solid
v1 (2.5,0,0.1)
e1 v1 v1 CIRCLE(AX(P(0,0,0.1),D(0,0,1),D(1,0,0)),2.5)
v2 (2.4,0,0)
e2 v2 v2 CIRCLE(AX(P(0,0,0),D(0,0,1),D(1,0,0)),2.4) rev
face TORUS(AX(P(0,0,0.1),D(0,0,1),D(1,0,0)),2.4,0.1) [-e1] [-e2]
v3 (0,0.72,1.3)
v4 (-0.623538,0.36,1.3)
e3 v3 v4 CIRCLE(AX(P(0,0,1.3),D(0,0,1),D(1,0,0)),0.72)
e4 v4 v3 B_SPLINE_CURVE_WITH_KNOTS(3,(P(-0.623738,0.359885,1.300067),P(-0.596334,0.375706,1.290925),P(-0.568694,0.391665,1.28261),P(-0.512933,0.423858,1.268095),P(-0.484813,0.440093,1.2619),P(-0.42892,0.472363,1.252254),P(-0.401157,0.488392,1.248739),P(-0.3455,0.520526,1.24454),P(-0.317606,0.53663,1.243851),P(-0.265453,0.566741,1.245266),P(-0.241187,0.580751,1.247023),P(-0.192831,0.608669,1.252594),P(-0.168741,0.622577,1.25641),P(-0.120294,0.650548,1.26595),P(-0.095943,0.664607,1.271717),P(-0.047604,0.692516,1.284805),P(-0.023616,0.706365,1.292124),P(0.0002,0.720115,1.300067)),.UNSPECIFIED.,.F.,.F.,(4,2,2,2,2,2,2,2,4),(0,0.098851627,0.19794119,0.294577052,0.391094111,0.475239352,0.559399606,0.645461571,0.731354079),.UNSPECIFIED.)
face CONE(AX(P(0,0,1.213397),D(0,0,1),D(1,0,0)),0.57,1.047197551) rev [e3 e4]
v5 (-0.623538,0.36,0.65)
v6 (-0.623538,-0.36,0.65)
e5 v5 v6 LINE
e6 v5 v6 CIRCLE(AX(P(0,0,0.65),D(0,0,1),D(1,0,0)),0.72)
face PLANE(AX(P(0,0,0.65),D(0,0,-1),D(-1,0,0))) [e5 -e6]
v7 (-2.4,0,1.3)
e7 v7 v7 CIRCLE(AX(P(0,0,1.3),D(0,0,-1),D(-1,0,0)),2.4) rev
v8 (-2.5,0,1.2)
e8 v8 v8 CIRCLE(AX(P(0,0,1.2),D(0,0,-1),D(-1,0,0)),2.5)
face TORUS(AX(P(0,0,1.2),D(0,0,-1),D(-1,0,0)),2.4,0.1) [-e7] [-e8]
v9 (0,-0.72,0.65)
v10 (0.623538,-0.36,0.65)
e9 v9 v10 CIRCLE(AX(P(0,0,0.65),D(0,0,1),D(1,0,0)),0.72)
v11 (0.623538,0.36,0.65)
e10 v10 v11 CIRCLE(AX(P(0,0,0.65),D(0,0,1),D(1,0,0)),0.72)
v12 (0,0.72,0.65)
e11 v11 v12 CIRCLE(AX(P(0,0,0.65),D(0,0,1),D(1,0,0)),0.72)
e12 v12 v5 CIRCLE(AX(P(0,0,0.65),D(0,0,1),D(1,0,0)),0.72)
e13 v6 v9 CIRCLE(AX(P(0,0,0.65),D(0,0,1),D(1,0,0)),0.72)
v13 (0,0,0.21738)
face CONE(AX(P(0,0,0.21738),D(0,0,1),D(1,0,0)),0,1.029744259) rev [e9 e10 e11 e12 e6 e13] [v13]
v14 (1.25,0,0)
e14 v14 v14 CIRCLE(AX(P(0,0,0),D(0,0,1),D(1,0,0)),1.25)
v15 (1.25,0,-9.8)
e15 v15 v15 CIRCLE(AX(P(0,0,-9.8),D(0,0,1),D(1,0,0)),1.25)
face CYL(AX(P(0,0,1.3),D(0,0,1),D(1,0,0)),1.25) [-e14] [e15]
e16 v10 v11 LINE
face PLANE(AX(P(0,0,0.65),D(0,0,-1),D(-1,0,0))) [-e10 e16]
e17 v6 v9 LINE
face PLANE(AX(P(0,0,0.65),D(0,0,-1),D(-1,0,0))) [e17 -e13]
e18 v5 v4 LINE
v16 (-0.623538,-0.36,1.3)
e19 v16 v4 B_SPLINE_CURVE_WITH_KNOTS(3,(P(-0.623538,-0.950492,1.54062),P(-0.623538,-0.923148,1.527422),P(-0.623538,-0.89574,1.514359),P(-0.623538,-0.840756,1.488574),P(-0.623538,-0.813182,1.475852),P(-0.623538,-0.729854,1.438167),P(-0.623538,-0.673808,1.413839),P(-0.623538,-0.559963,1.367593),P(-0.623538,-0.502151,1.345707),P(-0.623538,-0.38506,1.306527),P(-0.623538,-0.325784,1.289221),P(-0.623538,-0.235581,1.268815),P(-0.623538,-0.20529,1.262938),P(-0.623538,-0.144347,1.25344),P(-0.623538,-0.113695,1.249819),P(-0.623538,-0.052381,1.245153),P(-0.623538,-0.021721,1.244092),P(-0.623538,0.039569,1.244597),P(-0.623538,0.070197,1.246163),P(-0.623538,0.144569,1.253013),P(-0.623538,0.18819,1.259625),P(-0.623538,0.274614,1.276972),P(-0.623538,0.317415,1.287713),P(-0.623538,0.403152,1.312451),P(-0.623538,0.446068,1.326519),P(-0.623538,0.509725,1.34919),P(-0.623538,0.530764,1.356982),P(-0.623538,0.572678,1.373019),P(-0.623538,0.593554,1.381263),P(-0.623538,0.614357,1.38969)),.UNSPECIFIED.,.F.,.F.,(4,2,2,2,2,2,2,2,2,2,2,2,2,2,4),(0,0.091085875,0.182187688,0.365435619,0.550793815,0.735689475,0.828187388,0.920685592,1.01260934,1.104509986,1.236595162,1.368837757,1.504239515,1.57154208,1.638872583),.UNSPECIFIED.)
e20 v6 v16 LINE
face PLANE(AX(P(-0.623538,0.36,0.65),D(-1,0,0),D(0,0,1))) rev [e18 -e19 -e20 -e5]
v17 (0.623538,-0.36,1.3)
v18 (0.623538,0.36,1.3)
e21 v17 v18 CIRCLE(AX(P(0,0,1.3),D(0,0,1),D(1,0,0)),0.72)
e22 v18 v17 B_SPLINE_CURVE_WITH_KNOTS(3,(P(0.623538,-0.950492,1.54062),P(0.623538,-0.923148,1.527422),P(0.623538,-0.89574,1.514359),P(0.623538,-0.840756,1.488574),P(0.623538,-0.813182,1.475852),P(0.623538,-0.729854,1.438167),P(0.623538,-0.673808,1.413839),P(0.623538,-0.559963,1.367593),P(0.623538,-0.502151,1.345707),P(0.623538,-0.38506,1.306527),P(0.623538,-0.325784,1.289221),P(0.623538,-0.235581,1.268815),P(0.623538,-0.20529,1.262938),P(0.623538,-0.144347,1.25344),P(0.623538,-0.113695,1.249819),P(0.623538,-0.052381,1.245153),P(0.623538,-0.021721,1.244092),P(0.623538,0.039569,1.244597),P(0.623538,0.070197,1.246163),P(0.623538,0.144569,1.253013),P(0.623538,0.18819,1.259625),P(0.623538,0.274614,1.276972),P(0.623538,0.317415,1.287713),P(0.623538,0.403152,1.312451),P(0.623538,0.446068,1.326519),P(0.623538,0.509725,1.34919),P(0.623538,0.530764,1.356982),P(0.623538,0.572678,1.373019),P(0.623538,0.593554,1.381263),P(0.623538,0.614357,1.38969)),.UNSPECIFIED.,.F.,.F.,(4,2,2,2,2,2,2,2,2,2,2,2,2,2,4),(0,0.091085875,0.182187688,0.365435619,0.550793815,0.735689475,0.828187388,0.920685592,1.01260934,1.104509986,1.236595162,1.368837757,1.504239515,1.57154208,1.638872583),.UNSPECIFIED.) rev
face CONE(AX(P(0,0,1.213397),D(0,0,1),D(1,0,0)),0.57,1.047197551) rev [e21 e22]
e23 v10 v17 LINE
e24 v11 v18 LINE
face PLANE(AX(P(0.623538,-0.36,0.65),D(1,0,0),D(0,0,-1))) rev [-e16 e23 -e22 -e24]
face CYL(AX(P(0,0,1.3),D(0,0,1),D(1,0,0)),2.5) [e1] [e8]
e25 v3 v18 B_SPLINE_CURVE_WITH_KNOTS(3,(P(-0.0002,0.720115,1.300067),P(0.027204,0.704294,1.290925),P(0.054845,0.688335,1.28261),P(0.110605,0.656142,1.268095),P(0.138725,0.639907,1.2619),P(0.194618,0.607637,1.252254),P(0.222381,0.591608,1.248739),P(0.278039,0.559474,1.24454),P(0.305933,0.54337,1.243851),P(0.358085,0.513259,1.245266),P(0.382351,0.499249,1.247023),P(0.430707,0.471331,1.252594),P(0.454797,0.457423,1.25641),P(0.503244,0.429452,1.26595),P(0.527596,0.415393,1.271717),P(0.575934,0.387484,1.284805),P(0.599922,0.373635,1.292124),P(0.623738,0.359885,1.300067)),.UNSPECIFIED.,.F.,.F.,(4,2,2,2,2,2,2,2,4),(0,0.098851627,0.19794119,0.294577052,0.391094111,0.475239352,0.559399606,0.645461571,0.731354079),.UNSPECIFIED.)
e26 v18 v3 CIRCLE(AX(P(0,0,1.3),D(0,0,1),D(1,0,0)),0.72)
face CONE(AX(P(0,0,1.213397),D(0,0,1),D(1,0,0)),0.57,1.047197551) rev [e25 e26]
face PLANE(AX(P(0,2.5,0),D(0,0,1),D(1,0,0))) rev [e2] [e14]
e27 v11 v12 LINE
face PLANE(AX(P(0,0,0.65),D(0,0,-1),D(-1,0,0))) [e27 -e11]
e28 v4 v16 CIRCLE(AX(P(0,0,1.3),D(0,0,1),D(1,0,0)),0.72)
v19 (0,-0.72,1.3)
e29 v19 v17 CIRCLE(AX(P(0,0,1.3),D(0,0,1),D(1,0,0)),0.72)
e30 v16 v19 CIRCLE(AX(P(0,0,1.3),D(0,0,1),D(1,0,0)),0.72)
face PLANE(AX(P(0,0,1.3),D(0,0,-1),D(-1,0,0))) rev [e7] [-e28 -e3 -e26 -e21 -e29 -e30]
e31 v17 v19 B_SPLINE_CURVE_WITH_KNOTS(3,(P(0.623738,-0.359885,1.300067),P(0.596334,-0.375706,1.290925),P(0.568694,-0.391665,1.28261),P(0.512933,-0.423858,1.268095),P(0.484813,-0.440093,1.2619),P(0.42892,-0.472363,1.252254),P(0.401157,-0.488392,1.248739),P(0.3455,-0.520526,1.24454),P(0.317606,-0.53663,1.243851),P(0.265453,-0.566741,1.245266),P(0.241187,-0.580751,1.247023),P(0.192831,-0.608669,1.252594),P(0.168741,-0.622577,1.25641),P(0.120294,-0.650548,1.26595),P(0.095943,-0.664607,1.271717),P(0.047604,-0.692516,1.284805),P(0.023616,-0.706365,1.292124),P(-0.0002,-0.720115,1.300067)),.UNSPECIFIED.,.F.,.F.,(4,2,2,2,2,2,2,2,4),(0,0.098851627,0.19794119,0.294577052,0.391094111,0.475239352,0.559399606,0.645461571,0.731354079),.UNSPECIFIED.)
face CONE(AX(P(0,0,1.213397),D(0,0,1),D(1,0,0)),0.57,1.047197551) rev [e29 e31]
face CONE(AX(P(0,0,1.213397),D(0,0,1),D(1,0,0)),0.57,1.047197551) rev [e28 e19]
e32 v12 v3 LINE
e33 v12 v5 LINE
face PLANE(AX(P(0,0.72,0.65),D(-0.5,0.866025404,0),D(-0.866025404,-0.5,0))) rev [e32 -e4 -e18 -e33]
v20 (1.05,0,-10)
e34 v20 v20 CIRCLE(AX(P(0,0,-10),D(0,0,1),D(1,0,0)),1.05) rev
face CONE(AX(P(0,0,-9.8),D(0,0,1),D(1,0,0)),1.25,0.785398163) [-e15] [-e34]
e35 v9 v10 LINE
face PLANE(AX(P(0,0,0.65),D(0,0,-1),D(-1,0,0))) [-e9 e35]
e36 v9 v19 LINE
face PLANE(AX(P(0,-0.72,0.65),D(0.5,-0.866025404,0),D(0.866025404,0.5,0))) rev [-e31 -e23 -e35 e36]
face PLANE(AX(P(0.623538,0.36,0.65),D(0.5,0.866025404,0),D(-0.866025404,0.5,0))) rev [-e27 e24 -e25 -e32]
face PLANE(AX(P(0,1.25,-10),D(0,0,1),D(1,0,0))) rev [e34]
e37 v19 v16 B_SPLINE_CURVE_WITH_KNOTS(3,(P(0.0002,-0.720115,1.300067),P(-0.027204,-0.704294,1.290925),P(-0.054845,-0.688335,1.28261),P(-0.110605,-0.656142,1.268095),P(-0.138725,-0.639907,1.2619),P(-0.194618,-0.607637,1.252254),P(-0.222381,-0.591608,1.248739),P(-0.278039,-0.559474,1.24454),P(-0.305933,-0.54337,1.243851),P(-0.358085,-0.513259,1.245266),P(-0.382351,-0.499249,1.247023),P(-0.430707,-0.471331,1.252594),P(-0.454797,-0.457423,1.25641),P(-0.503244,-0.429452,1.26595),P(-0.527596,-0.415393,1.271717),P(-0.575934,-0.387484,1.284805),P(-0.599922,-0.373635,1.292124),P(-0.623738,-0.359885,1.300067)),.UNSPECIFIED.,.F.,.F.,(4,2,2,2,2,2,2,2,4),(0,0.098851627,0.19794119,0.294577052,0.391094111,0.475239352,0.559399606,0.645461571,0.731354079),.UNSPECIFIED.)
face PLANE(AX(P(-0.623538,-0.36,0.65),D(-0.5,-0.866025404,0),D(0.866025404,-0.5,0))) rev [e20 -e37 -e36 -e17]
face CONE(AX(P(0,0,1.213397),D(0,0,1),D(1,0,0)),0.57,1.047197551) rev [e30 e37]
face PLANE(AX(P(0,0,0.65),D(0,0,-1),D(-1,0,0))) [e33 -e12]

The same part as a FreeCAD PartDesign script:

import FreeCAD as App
import Part
import Sketcher
from FreeCAD import Vector
Q = App.Units.Quantity


def edges_at(feature, points):
    """Names of the edges that pass closest to the given points."""
    edges = feature.Shape.Edges
    near = lambda p: min(range(len(edges)), key=lambda i: edges[i].distToShape(Part.Vertex(*p))[0])
    return sorted({f"Edge{near(p) + 1}" for p in points})


def add_polygon(sketch, points):
    """Adds a closed chain of lines whose ends are joined by coincident constraints."""
    first, n = sketch.GeometryCount, len(points)
    for a, b in zip(points, points[1:] + points[:1]):
        sketch.addGeometry(Part.LineSegment(App.Vector(*a, 0), App.Vector(*b, 0)), False)
    for i in range(n):
        sketch.addConstraint(Sketcher.Constraint("Coincident", first + i, 2, first + (i + 1) % n, 1))

doc = App.newDocument("Part")
body = doc.addObject("PartDesign::Body", "Body")

# Sketch on YZ plane
sketch1 = body.newObject("Sketcher::SketchObject", "Sketch")
sketch1.AttachmentSupport = (doc.getObject("YZ_Plane"), [""])
sketch1.MapMode = "FlatFace"
add_polygon(sketch1, [(2.5, 1.3), (0, 1.3), (0, -10), (1.25, -10), (1.25, 0), (2.5, 0)])  # lines 0-5
sketch1.addConstraint(Sketcher.Constraint("Horizontal", 0))
sketch1.addConstraint(Sketcher.Constraint("Vertical", 1))
sketch1.addConstraint(Sketcher.Constraint("Horizontal", 2))
sketch1.addConstraint(Sketcher.Constraint("Vertical", 3))
sketch1.addConstraint(Sketcher.Constraint("Horizontal", 4))
sketch1.addConstraint(Sketcher.Constraint("Vertical", 5))
sketch1.addConstraint(Sketcher.Constraint("PointOnObject", 0, 2, -2))
sketch1.addConstraint(Sketcher.Constraint("PointOnObject", 3, 2, -1))
sketch1.addConstraint(Sketcher.Constraint("Equal", 2, 4))
sketch1.addConstraint(Sketcher.Constraint("DistanceY", 3, 1, 3, 2, Q("10 mm")))
sketch1.addConstraint(Sketcher.Constraint("DistanceX", 0, 2, 0, 1, Q("2.5 mm")))
sketch1.addConstraint(Sketcher.Constraint("DistanceY", 1, 2, 1, 1, Q("11.3 mm")))
revolution = body.newObject("PartDesign::Revolution", "Revolution")
revolution.Profile = sketch1
revolution.ReferenceAxis = (sketch1, ["V_Axis"])
revolution.Angle = 360

# Sketch on XY plane
sketch2 = body.newObject("Sketcher::SketchObject", "Sketch001")
sketch2.AttachmentSupport = (doc.getObject("XY_Plane"), [""])
sketch2.MapMode = "FlatFace"
sketch2.AttachmentOffset = App.Placement(Vector(0, 0, 1.3), App.Rotation())
add_polygon(sketch2, [(0, 0.72), (-0.623538, 0.36), (-0.623538, -0.36), (0, -0.72), (0.623538, -0.36), (0.623538, 0.36)])  # lines 0-5
sketch2.addConstraint(Sketcher.Constraint("Vertical", 1))
sketch2.addConstraint(Sketcher.Constraint("Vertical", 4))
sketch2.addConstraint(Sketcher.Constraint("Symmetric", 0, 2, 3, 2, -1, 1))
sketch2.addConstraint(Sketcher.Constraint("Symmetric", 2, 2, 5, 2, -1, 1))
sketch2.addConstraint(Sketcher.Constraint("PointOnObject", 2, 2, -2))
sketch2.addConstraint(Sketcher.Constraint("Parallel", 2, 5))
sketch2.addConstraint(Sketcher.Constraint("Horizontal", 1, 2, 3, 2))
sketch2.addConstraint(Sketcher.Constraint("Angle", 0, Q("-150 deg")))
sketch2.addConstraint(Sketcher.Constraint("DistanceY", 1, 2, 1, 1, Q("0.72 mm")))
sketch2.addConstraint(Sketcher.Constraint("Distance", 0, Q("0.72 mm")))
pocket1 = body.newObject("PartDesign::Pocket", "Pocket")
pocket1.Profile = sketch2
pocket1.Length = 0.65
doc.recompute()

fillet = body.newObject("PartDesign::Fillet", "Fillet")
fillet.Base = (pocket1, edges_at(pocket1, [(-2.5, 0, 0), (-2.5, 0, 1.3)]))
fillet.Radius = 0.1
doc.recompute()

chamfer = body.newObject("PartDesign::Chamfer", "Chamfer")
chamfer.Base = (fillet, edges_at(fillet, [(-1.25, 0, -10)]))
chamfer.Size = 0.2

# Sketch on YZ plane
sketch3 = body.newObject("Sketcher::SketchObject", "Sketch002")
sketch3.AttachmentSupport = (doc.getObject("YZ_Plane"), [""])
sketch3.MapMode = "FlatFace"
add_polygon(sketch3, [(0, 0.21738), (0.72, 0.65), (0, 0.65)])  # lines 0-2
add_polygon(sketch3, [(0.72, 1.3), (0.57, 1.3), (0.57, 1.213397)])  # lines 3-5
sketch3.addConstraint(Sketcher.Constraint("Horizontal", 1))
sketch3.addConstraint(Sketcher.Constraint("Vertical", 2))
sketch3.addConstraint(Sketcher.Constraint("Horizontal", 3))
sketch3.addConstraint(Sketcher.Constraint("Vertical", 4))
sketch3.addConstraint(Sketcher.Constraint("PointOnObject", 1, 2, -2))
sketch3.addConstraint(Sketcher.Constraint("Vertical", 0, 2, 5, 2))
sketch3.addConstraint(Sketcher.Constraint("Angle", 0, Q("31 deg")))
sketch3.addConstraint(Sketcher.Constraint("Angle", 5, Q("30 deg")))
sketch3.addConstraint(Sketcher.Constraint("DistanceX", 1, 2, 1, 1, Q("0.72 mm")))
sketch3.addConstraint(Sketcher.Constraint("DistanceX", 3, 2, 3, 1, Q("0.15 mm")))
sketch3.addConstraint(Sketcher.Constraint("DistanceY", -1, 1, 3, 2, Q("1.3 mm")))
sketch3.addConstraint(Sketcher.Constraint("DistanceY", -1, 1, 0, 2, Q("0.65 mm")))
groove = body.newObject("PartDesign::Groove", "Groove")
groove.Profile = sketch3
groove.ReferenceAxis = (sketch3, ["V_Axis"])
groove.Angle = 360

doc.recompute()
